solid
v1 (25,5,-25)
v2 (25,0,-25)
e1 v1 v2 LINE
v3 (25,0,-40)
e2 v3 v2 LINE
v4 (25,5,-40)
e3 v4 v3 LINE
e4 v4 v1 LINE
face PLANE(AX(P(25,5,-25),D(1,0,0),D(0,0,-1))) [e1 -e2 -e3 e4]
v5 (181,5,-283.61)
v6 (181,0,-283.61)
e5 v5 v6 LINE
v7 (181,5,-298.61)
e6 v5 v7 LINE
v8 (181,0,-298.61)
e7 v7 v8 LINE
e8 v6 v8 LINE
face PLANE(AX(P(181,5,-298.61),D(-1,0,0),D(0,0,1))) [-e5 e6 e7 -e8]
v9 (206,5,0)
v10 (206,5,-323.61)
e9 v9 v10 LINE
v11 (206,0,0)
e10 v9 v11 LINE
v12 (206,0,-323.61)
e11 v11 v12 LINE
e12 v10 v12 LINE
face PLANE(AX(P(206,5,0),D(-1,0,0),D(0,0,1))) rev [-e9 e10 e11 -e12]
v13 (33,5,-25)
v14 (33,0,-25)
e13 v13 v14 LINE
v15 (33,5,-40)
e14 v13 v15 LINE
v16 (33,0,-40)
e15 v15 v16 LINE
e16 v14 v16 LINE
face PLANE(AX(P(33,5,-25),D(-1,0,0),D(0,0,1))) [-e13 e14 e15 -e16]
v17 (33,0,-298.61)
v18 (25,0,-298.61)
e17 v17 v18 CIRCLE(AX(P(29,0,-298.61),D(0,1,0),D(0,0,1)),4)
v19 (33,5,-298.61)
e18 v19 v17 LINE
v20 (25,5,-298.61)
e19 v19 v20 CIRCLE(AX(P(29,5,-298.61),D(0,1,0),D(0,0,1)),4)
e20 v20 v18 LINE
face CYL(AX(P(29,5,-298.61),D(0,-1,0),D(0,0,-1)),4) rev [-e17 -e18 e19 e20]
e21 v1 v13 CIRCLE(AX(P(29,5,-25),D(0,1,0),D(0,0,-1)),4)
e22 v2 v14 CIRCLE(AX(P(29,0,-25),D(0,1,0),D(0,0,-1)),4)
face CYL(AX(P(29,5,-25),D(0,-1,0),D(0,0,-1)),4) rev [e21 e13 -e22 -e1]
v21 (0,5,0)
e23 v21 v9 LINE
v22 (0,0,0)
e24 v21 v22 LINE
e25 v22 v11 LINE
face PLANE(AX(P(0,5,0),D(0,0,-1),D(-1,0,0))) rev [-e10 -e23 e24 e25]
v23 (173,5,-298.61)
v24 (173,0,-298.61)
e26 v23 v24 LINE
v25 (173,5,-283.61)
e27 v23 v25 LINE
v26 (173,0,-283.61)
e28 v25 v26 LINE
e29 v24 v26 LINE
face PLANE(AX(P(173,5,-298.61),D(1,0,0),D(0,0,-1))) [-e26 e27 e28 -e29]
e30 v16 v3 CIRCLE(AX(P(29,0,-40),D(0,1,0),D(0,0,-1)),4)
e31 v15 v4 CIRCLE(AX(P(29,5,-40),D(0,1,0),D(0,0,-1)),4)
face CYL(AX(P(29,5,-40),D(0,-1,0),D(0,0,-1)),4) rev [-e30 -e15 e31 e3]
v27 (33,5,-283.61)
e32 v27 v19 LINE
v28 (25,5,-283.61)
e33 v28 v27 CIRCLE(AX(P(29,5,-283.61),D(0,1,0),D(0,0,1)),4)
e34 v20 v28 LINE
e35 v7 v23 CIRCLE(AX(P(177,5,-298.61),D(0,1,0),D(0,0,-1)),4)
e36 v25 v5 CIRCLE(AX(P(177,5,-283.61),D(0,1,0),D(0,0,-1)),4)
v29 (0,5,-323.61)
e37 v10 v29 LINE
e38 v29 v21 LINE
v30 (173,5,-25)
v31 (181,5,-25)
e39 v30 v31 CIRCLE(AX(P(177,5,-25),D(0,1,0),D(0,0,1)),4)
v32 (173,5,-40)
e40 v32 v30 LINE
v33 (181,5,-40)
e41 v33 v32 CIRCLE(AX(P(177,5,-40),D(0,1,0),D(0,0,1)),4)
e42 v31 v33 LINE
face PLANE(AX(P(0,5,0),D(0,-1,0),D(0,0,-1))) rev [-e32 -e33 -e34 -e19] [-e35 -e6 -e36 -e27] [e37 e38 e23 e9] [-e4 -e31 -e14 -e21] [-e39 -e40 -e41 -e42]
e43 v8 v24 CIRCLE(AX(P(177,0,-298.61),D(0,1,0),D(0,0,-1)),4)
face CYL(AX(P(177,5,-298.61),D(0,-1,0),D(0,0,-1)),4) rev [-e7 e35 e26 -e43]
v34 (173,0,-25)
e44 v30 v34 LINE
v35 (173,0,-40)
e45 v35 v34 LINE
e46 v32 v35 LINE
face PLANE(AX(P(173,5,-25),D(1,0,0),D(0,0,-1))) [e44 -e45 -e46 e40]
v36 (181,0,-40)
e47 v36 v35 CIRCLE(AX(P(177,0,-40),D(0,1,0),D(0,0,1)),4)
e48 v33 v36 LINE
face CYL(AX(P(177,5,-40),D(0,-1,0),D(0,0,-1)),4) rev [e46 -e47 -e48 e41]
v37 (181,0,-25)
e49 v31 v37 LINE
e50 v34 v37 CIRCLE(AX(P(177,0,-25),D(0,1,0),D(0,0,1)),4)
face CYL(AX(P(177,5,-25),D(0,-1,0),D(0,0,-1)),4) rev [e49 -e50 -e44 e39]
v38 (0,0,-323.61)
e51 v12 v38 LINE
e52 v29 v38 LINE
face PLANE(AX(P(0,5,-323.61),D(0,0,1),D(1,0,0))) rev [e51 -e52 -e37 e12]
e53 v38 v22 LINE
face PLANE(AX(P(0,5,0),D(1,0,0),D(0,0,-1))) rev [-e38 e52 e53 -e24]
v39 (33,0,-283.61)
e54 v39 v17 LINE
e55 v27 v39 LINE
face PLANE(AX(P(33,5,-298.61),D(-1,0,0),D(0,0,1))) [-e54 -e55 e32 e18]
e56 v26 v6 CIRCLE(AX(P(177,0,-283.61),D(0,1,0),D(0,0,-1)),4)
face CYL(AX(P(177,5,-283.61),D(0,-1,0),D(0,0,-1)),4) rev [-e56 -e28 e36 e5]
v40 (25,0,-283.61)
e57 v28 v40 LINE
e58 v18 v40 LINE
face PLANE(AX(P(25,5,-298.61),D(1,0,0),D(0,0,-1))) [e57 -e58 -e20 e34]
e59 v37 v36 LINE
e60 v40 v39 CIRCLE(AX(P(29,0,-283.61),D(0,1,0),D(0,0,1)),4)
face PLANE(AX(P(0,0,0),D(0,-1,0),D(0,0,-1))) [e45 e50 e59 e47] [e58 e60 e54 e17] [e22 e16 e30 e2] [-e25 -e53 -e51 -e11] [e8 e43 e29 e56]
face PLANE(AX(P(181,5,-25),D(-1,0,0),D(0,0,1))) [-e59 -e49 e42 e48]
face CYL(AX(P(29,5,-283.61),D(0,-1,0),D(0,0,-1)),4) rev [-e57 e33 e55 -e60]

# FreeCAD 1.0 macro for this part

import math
import FreeCAD as App
import Part
import Sketcher
from FreeCAD import Vector

doc = App.newDocument("Part")
body = doc.addObject("PartDesign::Body", "Body")

# Sketch on XZ plane
sketch1 = body.newObject("Sketcher::SketchObject", "Sketch")
sketch1.AttachmentSupport = (doc.getObject("XZ_Plane"), [""])
sketch1.MapMode = "FlatFace"
sketch1.addGeometry([
    Part.LineSegment(Vector(0, -323.61, 0), Vector(0, 0, 0)),  # 0
    Part.LineSegment(Vector(0, 0, 0), Vector(206, 0, 0)),  # 1
    Part.LineSegment(Vector(206, 0, 0), Vector(206, -323.61, 0)),  # 2
    Part.LineSegment(Vector(206, -323.61, 0), Vector(0, -323.61, 0)),  # 3
    Part.ArcOfCircle(Part.Circle(Vector(29, -25, 0), Vector(0, 0, 1), 4), math.radians(0), math.radians(180)),  # 4
    Part.LineSegment(Vector(25, -25, 0), Vector(25, -40, 0)),  # 5
    Part.ArcOfCircle(Part.Circle(Vector(29, -40, 0), Vector(0, 0, 1), 4), math.radians(180), math.radians(360)),  # 6
    Part.LineSegment(Vector(33, -40, 0), Vector(33, -25, 0)),  # 7
    Part.ArcOfCircle(Part.Circle(Vector(177, -25, 0), Vector(0, 0, 1), 4), math.radians(0), math.radians(180)),  # 8
    Part.LineSegment(Vector(173, -25, 0), Vector(173, -40, 0)),  # 9
    Part.ArcOfCircle(Part.Circle(Vector(177, -40, 0), Vector(0, 0, 1), 4), math.radians(180), math.radians(360)),  # 10
    Part.LineSegment(Vector(181, -40, 0), Vector(181, -25, 0)),  # 11
    Part.LineSegment(Vector(25, -283.61, 0), Vector(25, -298.61, 0)),  # 12
    Part.ArcOfCircle(Part.Circle(Vector(29, -298.61, 0), Vector(0, 0, 1), 4), math.radians(180), math.radians(360)),  # 13
    Part.LineSegment(Vector(33, -298.61, 0), Vector(33, -283.61, 0)),  # 14
    Part.ArcOfCircle(Part.Circle(Vector(29, -283.61, 0), Vector(0, 0, 1), 4), math.radians(0), math.radians(180)),  # 15
    Part.LineSegment(Vector(173, -283.61, 0), Vector(173, -298.61, 0)),  # 16
    Part.ArcOfCircle(Part.Circle(Vector(177, -298.61, 0), Vector(0, 0, 1), 4), math.radians(180), math.radians(360)),  # 17
    Part.LineSegment(Vector(181, -298.61, 0), Vector(181, -283.61, 0)),  # 18
    Part.ArcOfCircle(Part.Circle(Vector(177, -283.61, 0), Vector(0, 0, 1), 4), math.radians(0), math.radians(180)),  # 19
], False)
sketch1.addConstraint([
    Sketcher.Constraint("Coincident", 0, 2, 1, 1),
    Sketcher.Constraint("Coincident", 1, 2, 2, 1),
    Sketcher.Constraint("Coincident", 2, 2, 3, 1),
    Sketcher.Constraint("Coincident", 3, 2, 0, 1),
    Sketcher.Constraint("Tangent", 4, 2, 5, 1),
    Sketcher.Constraint("Tangent", 5, 2, 6, 1),
    Sketcher.Constraint("Tangent", 6, 2, 7, 1),
    Sketcher.Constraint("Tangent", 7, 2, 4, 1),
    Sketcher.Constraint("Tangent", 8, 2, 9, 1),
    Sketcher.Constraint("Tangent", 9, 2, 10, 1),
    Sketcher.Constraint("Tangent", 10, 2, 11, 1),
    Sketcher.Constraint("Tangent", 11, 2, 8, 1),
    Sketcher.Constraint("Tangent", 12, 2, 13, 1),
    Sketcher.Constraint("Tangent", 13, 2, 14, 1),
    Sketcher.Constraint("Tangent", 14, 2, 15, 1),
    Sketcher.Constraint("Tangent", 15, 2, 12, 1),
    Sketcher.Constraint("Tangent", 16, 2, 17, 1),
    Sketcher.Constraint("Tangent", 17, 2, 18, 1),
    Sketcher.Constraint("Tangent", 18, 2, 19, 1),
    Sketcher.Constraint("Tangent", 19, 2, 16, 1),
    Sketcher.Constraint("Vertical", 0),
    Sketcher.Constraint("Horizontal", 1),
    Sketcher.Constraint("Vertical", 2),
    Sketcher.Constraint("Horizontal", 3),
    Sketcher.Constraint("Vertical", 5),
    Sketcher.Constraint("Vertical", 7),
    Sketcher.Constraint("Vertical", 9),
    Sketcher.Constraint("Vertical", 11),
    Sketcher.Constraint("Vertical", 12),
    Sketcher.Constraint("Vertical", 14),
    Sketcher.Constraint("Vertical", 16),
    Sketcher.Constraint("Vertical", 18),
    Sketcher.Constraint("Coincident", 0, 2, -1, 1),
    Sketcher.Constraint("Equal", 6, 8),
    Sketcher.Constraint("Equal", 10, 13),
    Sketcher.Constraint("Equal", 15, 17),
    Sketcher.Constraint("Horizontal", 4, 3, 8, 3),
    Sketcher.Constraint("Horizontal", 6, 3, 10, 3),
    Sketcher.Constraint("Horizontal", 13, 3, 17, 3),
    Sketcher.Constraint("Horizontal", 15, 3, 19, 3),
    Sketcher.Constraint("Vertical", 6, 3, 13, 3),
    Sketcher.Constraint("Vertical", 10, 3, 17, 3),
    Sketcher.Constraint("Equal", 11, 12),
    Sketcher.Constraint("Radius", 4, 4.0),
    Sketcher.Constraint("DistanceX", 1, 1, 1, 2, 206.0),
    Sketcher.Constraint("DistanceY", 5, 2, 5, 1, 15.0),
    Sketcher.Constraint("DistanceX", -1, 1, 4, 3, 29.0),
    Sketcher.Constraint("DistanceY", 4, 3, -1, 1, 25.0),
    Sketcher.Constraint("DistanceX", -1, 1, 8, 3, 177.0),
    Sketcher.Constraint("DistanceY", 2, 2, 17, 3, 25.0),
    Sketcher.Constraint("DistanceY", 0, 1, 0, 2, 323.61),
])
pad1 = body.newObject("PartDesign::Pad", "Pad")
pad1.Profile = sketch1
pad1.Length = 5
pad1.Reversed = True

doc.recompute()
